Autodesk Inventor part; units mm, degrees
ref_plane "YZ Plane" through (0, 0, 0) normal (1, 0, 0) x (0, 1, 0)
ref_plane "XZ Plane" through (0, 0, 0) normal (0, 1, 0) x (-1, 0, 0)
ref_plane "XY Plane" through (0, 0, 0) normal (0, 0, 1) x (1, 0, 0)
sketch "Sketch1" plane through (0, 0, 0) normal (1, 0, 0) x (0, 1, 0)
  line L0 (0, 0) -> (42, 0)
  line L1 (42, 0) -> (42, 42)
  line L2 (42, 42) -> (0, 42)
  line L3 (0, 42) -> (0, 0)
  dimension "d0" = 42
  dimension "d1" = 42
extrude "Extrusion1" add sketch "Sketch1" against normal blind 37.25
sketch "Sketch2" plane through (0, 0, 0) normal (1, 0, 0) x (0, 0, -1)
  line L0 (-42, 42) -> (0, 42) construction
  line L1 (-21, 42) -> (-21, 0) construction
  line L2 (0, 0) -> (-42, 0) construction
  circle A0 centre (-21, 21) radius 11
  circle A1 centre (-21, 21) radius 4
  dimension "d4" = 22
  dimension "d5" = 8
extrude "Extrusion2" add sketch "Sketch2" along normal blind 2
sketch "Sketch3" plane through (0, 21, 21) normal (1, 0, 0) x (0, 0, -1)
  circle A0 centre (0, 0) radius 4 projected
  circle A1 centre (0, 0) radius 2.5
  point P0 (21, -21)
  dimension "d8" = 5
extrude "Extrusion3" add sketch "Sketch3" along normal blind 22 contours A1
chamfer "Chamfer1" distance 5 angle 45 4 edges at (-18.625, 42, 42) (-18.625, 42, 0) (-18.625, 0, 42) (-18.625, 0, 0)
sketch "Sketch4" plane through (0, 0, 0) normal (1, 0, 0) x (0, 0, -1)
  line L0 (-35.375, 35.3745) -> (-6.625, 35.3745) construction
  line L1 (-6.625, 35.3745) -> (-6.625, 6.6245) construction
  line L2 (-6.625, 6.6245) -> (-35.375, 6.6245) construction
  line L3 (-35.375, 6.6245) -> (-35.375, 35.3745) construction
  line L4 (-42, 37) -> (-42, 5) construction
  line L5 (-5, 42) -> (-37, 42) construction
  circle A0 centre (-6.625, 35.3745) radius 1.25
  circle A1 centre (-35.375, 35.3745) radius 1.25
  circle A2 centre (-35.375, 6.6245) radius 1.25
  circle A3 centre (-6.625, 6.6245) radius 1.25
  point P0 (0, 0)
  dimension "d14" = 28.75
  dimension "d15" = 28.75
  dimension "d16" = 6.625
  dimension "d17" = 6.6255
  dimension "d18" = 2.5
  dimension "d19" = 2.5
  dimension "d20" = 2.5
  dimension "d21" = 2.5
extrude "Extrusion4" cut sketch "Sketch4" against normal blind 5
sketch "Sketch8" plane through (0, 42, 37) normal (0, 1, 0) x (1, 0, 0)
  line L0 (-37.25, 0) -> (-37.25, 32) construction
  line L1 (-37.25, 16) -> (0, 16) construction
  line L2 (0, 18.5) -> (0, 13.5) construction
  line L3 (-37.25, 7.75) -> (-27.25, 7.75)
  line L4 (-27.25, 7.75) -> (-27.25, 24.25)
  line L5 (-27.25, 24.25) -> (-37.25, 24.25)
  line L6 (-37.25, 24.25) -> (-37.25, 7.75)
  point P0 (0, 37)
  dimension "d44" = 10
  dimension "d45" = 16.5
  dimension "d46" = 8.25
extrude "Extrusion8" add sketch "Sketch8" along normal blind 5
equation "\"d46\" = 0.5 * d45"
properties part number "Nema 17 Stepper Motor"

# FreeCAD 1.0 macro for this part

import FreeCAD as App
import Part
import Sketcher


def edges_at(feature, points):
    """Names of the edges that pass closest to the given points."""
    edges = feature.Shape.Edges
    near = lambda p: min(range(len(edges)), key=lambda i: edges[i].distToShape(Part.Vertex(*p))[0])
    return sorted({f"Edge{near(p) + 1}" for p in points})

doc = App.newDocument("Part")
body = doc.addObject("PartDesign::Body", "Body")

# Sketch on YZ plane
sketch1 = body.newObject("Sketcher::SketchObject", "Sketch")
sketch1.AttachmentSupport = (doc.getObject("YZ_Plane"), [""])
sketch1.MapMode = "FlatFace"
sketch1.addGeometry([
    Part.LineSegment(App.Vector(0, 42, 0), App.Vector(0, 0, 0)),
    Part.LineSegment(App.Vector(0, 0, 0), App.Vector(42, 0, 0)),
    Part.LineSegment(App.Vector(42, 0, 0), App.Vector(42, 42, 0)),
    Part.LineSegment(App.Vector(42, 42, 0), App.Vector(0, 42, 0)),
], False)
sketch1.addConstraint([
    Sketcher.Constraint("Coincident", 0, 2, 1, 1),
    Sketcher.Constraint("Coincident", 1, 2, 2, 1),
    Sketcher.Constraint("Coincident", 2, 2, 3, 1),
    Sketcher.Constraint("Coincident", 3, 2, 0, 1),
    Sketcher.Constraint("Vertical", 0),
    Sketcher.Constraint("Horizontal", 1),
    Sketcher.Constraint("Vertical", 2),
    Sketcher.Constraint("Horizontal", 3),
    Sketcher.Constraint("Coincident", 0, 2, -1, 1),
    Sketcher.Constraint("Equal", 3, 0),
    Sketcher.Constraint("DistanceX", 1, 1, 1, 2, 42.0),
])
pad1 = body.newObject("PartDesign::Pad", "Pad")
pad1.Profile = sketch1
pad1.Length = 37.25
pad1.Reversed = True

# Sketch on YZ plane
sketch2 = body.newObject("Sketcher::SketchObject", "Sketch001")
sketch2.AttachmentSupport = (doc.getObject("YZ_Plane"), [""])
sketch2.MapMode = "FlatFace"
sketch2.addGeometry([
    Part.Circle(App.Vector(21, 21, 0), App.Vector(0, 0, 1), 11),
    Part.Circle(App.Vector(21, 21, 0), App.Vector(0, 0, 1), 4),
], False)
sketch2.addConstraint([
    Sketcher.Constraint("Coincident", 1, 3, 0, 3),
    Sketcher.Constraint("Diameter", 0, 22.0),
    Sketcher.Constraint("Diameter", 1, 8.0),
    Sketcher.Constraint("DistanceX", -1, 1, 0, 3, 21.0),
    Sketcher.Constraint("DistanceY", -1, 1, 0, 3, 21.0),
])
pad2 = body.newObject("PartDesign::Pad", "Pad001")
pad2.Profile = sketch2
pad2.Length = 2

# Sketch on YZ plane
sketch3 = body.newObject("Sketcher::SketchObject", "Sketch002")
sketch3.AttachmentSupport = (doc.getObject("YZ_Plane"), [""])
sketch3.MapMode = "FlatFace"
sketch3.addGeometry(Part.Circle(App.Vector(21, 21, 0), App.Vector(0, 0, 1), 2.5), False)
sketch3.addConstraint([
    Sketcher.Constraint("Diameter", 0, 5.0),
    Sketcher.Constraint("DistanceX", -1, 1, 0, 3, 21.0),
    Sketcher.Constraint("DistanceY", -1, 1, 0, 3, 21.0),
])
pad3 = body.newObject("PartDesign::Pad", "Pad002")
pad3.Profile = sketch3
pad3.Length = 22
doc.recompute()

chamfer = body.newObject("PartDesign::Chamfer", "Chamfer")
chamfer.Base = (pad3, edges_at(pad3, [
    (-18.625, 42, 42),
    (-18.625, 42, 0),
    (-18.625, 0, 42),
    (-18.625, 0, 0),
]))
chamfer.Size = 5

# Sketch on YZ plane
sketch4 = body.newObject("Sketcher::SketchObject", "Sketch003")
sketch4.AttachmentSupport = (doc.getObject("YZ_Plane"), [""])
sketch4.MapMode = "FlatFace"
sketch4.addGeometry([
    Part.Circle(App.Vector(35.3745, 6.625, 0), App.Vector(0, 0, 1), 1.25),
    Part.Circle(App.Vector(35.3745, 35.375, 0), App.Vector(0, 0, 1), 1.25),
    Part.Circle(App.Vector(6.6245, 35.375, 0), App.Vector(0, 0, 1), 1.25),
    Part.Circle(App.Vector(6.6245, 6.625, 0), App.Vector(0, 0, 1), 1.25),
], False)
sketch4.addConstraint([
    Sketcher.Constraint("Equal", 0, 1),
    Sketcher.Constraint("Equal", 1, 2),
    Sketcher.Constraint("Equal", 2, 3),
    Sketcher.Constraint("Horizontal", 1, 3, 2, 3),
    Sketcher.Constraint("Horizontal", 0, 3, 3, 3),
    Sketcher.Constraint("Vertical", 0, 3, 1, 3),
    Sketcher.Constraint("Vertical", 2, 3, 3, 3),
    Sketcher.Constraint("Diameter", 0, 2.5),
    Sketcher.Constraint("DistanceY", 0, 3, 1, 3, 28.75),
    Sketcher.Constraint("DistanceX", 2, 3, 1, 3, 28.75),
    Sketcher.Constraint("DistanceY", -1, 1, 0, 3, 6.625),
    Sketcher.Constraint("DistanceX", -1, 1, 2, 3, 6.6245),
])
pocket1 = body.newObject("PartDesign::Pocket", "Pocket")
pocket1.Profile = sketch4
pocket1.Length = 5

# Sketch on XZ plane
sketch5 = body.newObject("Sketcher::SketchObject", "Sketch004")
sketch5.AttachmentSupport = (doc.getObject("XZ_Plane"), [""])
sketch5.MapMode = "FlatFace"
sketch5.AttachmentOffset = App.Placement(App.Vector(0, 0, -42), App.Rotation())
sketch5.addGeometry([
    Part.LineSegment(App.Vector(-37.25, 12.75, 0), App.Vector(-37.25, 29.25, 0)),
    Part.LineSegment(App.Vector(-37.25, 29.25, 0), App.Vector(-27.25, 29.25, 0)),
    Part.LineSegment(App.Vector(-27.25, 29.25, 0), App.Vector(-27.25, 12.75, 0)),
    Part.LineSegment(App.Vector(-27.25, 12.75, 0), App.Vector(-37.25, 12.75, 0)),
], False)
sketch5.addConstraint([
    Sketcher.Constraint("Coincident", 0, 2, 1, 1),
    Sketcher.Constraint("Coincident", 1, 2, 2, 1),
    Sketcher.Constraint("Coincident", 2, 2, 3, 1),
    Sketcher.Constraint("Coincident", 3, 2, 0, 1),
    Sketcher.Constraint("Vertical", 0),
    Sketcher.Constraint("Horizontal", 1),
    Sketcher.Constraint("Vertical", 2),
    Sketcher.Constraint("Horizontal", 3),
    Sketcher.Constraint("DistanceX", 1, 1, 1, 2, 10.0),
    Sketcher.Constraint("DistanceY", 0, 1, 0, 2, 16.5),
    Sketcher.Constraint("DistanceX", 0, 2, -1, 1, 37.25),
    Sketcher.Constraint("DistanceY", -1, 1, 0, 2, 29.25),
])
pad4 = body.newObject("PartDesign::Pad", "Pad003")
pad4.Profile = sketch5
pad4.Length = 5
pad4.Reversed = True

doc.recompute()
